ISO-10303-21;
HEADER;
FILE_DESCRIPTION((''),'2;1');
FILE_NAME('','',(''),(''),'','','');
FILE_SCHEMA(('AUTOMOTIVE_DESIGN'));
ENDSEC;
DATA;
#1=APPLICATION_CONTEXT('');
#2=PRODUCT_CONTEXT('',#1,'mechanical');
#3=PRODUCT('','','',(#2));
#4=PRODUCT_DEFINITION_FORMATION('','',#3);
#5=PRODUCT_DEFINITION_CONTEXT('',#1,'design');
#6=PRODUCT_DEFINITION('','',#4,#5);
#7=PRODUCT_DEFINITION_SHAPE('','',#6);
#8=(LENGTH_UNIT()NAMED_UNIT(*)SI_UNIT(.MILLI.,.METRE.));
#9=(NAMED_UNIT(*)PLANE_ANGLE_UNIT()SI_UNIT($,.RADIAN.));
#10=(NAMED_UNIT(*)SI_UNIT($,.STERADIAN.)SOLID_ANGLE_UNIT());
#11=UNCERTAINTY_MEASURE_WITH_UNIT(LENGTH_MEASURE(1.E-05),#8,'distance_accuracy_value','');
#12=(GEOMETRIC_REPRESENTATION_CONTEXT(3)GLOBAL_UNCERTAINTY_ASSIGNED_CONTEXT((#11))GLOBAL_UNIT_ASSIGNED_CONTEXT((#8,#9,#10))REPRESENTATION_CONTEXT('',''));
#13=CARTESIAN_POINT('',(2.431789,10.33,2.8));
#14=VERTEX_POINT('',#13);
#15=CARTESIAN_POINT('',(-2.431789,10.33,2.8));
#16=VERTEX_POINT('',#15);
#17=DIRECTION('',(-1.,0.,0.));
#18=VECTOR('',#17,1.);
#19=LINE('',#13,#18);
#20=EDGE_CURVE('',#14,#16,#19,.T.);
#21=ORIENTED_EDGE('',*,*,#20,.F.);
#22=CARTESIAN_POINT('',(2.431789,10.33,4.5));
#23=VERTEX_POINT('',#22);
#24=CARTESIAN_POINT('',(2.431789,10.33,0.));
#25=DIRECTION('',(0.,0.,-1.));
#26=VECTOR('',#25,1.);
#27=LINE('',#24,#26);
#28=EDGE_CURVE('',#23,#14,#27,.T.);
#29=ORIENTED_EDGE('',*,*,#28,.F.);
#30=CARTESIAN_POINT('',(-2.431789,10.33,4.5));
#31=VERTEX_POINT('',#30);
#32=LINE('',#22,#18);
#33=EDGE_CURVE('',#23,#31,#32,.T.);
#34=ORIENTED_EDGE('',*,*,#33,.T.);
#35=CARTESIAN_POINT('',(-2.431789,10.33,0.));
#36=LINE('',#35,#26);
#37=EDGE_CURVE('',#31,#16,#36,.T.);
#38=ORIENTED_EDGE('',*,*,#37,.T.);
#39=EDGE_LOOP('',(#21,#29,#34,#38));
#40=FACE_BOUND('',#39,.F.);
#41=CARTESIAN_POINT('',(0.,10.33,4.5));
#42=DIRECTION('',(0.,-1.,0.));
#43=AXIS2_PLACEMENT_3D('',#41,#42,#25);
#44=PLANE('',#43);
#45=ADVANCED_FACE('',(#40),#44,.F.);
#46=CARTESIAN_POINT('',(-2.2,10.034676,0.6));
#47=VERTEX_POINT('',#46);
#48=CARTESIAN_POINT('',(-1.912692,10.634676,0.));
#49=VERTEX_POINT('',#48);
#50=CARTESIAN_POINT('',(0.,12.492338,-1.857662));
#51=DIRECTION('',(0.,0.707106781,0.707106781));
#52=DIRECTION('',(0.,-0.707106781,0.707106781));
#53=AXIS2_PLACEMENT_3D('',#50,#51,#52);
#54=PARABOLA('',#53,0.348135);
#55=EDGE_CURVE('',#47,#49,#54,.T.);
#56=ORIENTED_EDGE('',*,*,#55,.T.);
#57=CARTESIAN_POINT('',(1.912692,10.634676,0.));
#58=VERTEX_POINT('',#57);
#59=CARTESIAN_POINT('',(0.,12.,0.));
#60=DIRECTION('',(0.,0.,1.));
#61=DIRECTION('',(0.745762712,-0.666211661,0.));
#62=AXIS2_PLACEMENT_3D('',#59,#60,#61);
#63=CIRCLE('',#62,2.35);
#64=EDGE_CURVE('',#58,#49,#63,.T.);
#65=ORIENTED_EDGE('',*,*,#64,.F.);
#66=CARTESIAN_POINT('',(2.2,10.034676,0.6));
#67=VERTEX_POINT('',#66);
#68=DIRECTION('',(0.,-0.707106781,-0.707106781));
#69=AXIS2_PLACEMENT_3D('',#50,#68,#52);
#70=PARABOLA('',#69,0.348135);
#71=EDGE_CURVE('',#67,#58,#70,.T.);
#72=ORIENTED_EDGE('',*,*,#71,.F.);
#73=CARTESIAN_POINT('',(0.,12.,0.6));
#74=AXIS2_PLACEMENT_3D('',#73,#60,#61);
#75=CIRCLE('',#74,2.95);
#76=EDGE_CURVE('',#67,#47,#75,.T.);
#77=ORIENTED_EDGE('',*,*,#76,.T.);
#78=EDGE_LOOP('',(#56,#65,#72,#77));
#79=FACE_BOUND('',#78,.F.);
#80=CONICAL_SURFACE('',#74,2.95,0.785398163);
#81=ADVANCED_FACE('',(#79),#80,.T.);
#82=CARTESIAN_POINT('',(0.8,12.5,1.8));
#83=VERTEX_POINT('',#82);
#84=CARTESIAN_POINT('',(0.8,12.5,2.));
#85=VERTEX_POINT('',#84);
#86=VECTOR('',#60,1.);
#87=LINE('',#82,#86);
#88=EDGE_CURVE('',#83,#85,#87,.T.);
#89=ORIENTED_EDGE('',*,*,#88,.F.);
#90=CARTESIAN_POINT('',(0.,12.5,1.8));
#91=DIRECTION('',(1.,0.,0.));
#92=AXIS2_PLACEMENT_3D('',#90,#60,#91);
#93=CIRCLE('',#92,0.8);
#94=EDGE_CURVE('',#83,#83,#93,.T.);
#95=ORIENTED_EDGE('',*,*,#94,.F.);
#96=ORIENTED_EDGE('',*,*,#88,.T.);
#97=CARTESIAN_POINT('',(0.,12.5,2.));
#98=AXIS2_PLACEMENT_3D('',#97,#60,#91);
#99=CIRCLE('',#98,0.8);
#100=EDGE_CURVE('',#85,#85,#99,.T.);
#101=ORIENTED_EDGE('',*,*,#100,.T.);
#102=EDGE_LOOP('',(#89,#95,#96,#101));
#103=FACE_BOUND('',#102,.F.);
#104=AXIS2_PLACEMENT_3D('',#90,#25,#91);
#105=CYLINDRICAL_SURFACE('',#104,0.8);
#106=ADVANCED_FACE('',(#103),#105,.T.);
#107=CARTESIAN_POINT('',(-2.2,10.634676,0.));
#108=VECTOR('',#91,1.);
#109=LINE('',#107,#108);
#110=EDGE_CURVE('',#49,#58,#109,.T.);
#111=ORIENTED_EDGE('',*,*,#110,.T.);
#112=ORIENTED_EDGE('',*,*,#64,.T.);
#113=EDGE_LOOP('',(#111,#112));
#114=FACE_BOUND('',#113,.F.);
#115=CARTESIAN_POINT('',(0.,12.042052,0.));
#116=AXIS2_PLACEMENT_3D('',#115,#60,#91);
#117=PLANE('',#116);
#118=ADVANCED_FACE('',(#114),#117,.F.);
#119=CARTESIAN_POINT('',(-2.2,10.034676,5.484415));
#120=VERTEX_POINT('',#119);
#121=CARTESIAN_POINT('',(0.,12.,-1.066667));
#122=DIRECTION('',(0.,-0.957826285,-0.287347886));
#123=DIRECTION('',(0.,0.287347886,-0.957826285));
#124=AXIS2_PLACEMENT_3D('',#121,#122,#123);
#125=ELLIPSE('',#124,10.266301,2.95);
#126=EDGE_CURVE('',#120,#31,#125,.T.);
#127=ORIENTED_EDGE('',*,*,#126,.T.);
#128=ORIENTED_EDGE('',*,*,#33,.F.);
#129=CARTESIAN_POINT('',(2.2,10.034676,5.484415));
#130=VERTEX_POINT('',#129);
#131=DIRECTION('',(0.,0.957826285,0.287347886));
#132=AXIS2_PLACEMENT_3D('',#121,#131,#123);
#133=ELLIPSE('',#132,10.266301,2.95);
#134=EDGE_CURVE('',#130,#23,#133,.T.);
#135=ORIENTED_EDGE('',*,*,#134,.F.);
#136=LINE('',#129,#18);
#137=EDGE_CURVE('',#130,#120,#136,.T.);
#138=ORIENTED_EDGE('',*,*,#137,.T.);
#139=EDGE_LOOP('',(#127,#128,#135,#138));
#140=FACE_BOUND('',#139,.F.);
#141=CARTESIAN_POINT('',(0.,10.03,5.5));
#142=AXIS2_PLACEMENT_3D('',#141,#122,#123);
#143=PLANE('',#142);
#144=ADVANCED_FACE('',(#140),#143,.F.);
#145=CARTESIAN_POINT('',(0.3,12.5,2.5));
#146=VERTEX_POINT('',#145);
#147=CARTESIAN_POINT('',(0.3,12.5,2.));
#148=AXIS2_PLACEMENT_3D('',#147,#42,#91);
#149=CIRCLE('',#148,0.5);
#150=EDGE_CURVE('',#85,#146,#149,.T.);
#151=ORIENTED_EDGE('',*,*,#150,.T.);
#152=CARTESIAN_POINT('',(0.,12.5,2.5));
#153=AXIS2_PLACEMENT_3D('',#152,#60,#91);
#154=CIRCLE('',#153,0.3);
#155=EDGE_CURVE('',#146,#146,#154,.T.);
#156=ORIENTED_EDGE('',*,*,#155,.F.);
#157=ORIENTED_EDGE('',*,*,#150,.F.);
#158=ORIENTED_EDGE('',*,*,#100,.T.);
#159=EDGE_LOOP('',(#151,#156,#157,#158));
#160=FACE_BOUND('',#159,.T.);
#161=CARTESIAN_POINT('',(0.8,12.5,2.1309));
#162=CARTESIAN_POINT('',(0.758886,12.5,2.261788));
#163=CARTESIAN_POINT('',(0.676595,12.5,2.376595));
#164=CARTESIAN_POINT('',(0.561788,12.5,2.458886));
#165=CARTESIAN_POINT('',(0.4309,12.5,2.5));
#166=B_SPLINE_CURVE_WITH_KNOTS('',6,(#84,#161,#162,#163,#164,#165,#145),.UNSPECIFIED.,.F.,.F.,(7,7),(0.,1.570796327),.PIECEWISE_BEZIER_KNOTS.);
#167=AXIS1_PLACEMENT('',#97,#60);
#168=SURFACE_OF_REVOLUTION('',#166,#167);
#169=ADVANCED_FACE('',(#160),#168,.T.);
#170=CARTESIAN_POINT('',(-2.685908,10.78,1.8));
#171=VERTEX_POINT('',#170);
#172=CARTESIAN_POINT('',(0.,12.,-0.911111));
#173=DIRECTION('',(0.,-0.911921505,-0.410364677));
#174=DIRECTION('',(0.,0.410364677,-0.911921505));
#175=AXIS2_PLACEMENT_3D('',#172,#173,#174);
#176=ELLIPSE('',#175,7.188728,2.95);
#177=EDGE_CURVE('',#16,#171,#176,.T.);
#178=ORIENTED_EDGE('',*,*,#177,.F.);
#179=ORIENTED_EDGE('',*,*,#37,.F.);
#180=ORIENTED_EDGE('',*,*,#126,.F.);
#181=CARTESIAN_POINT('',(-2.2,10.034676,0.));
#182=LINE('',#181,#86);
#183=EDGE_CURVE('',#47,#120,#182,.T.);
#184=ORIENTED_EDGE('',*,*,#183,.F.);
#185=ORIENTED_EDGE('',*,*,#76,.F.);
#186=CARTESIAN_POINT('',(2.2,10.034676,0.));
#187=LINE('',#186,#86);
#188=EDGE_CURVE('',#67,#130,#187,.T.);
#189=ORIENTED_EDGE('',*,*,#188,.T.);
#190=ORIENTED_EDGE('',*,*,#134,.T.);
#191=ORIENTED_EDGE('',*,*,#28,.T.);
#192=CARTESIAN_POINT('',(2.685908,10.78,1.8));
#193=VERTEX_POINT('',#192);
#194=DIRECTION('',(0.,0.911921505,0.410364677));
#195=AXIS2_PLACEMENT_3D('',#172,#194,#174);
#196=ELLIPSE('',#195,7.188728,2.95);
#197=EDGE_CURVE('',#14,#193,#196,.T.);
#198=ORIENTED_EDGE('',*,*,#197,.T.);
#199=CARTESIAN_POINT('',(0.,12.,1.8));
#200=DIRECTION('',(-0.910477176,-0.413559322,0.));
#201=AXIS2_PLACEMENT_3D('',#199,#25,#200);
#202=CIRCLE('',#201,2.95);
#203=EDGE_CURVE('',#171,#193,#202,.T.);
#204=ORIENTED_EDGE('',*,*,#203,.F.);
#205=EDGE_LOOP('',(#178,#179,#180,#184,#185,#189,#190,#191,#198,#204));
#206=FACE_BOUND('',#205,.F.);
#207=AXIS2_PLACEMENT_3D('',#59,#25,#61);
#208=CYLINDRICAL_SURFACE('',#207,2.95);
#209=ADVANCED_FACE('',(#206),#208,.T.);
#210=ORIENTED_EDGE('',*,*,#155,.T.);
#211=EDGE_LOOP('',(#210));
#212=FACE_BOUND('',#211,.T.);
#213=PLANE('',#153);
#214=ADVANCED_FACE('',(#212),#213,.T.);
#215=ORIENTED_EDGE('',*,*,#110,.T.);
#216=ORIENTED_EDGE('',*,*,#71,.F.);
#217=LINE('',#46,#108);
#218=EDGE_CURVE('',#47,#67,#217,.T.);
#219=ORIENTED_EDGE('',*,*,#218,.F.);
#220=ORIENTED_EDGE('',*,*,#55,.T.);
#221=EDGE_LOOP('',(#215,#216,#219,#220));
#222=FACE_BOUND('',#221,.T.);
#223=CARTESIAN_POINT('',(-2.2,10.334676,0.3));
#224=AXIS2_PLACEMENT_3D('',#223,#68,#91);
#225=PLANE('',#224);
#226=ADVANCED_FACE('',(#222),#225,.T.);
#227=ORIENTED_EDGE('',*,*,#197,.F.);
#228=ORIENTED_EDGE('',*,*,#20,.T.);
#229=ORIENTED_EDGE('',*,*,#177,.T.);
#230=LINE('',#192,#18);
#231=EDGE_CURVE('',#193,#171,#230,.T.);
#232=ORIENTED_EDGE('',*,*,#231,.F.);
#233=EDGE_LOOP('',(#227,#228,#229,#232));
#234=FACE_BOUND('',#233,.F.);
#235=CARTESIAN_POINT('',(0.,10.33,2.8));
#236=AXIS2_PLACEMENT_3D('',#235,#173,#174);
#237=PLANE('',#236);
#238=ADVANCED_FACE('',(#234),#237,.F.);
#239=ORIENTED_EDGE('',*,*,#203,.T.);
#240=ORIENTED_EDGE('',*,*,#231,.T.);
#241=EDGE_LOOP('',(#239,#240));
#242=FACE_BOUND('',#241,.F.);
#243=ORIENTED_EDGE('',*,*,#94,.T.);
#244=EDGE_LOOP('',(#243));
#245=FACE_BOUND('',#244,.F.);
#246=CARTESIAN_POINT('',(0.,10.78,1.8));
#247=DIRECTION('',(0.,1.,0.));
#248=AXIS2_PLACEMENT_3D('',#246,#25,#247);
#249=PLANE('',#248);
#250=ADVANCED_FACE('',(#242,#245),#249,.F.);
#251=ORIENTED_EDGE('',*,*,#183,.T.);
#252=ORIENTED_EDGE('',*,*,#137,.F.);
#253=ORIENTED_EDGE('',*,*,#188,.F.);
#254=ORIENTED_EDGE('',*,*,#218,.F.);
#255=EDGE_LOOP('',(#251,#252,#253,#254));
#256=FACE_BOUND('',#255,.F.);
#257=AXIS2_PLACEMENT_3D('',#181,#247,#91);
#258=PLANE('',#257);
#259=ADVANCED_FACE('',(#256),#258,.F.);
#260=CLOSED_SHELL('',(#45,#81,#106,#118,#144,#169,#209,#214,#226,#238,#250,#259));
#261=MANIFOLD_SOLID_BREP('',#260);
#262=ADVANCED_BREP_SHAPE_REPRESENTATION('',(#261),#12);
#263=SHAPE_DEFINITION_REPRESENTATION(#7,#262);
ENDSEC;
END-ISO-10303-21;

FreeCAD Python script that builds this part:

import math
import FreeCAD as App
import Part
import Sketcher
Q = App.Units.Quantity


def edges_at(feature, points):
    """Names of the edges that pass closest to the given points."""
    edges = feature.Shape.Edges
    near = lambda p: min(range(len(edges)), key=lambda i: edges[i].distToShape(Part.Vertex(*p))[0])
    return sorted({f"Edge{near(p) + 1}" for p in points})

doc = App.newDocument("Part")
params = doc.addObject("Spreadsheet::Sheet", "Params")
for row, (alias, value) in enumerate([
    ("sketch1_radius", "2.95 mm"),
    ("sketch1_width", "4.4 mm"),
    ("pad1_length", "5.5 mm"),
    ("sketch2_height", "1.7 mm"),
    ("sketch2_height2", "3.7 mm"),
    ("sketch2_width", "5.22 mm"),
    ("sketch2_width2", "5.97 mm"),
    ("sketch3_diameter", "1.6 mm"),
    ("pad2_length", "0.7 mm"),
    ("fillet_radius", "0.5 mm"),
    ("chamfer_size", "0.6 mm"),
], start=1):
    params.set(f"A{row}", alias)
    params.set(f"B{row}", "=" + value)
    params.setAlias(f"B{row}", alias)

body = doc.addObject("PartDesign::Body", "Body")

# Sketch on XY plane
sketch1 = doc.addObject("Sketcher::SketchObject", "Sketch")
body.addObject(sketch1)
sketch1.AttachmentSupport = (doc.XY_Plane, [""])
sketch1.MapMode = "FlatFace"
sketch1.addGeometry(Part.ArcOfCircle(Part.Circle(App.Vector(0, 0, 0), App.Vector(0, 0, 1), 3), math.radians(-42), math.radians(222)), False)
sketch1.addGeometry(Part.LineSegment(App.Vector(-2.2, -2, 0), App.Vector(2.2, -2, 0)), False)
sketch1.addConstraint(Sketcher.Constraint("Coincident", 0, 1, 1, 2))
sketch1.addConstraint(Sketcher.Constraint("Coincident", 1, 1, 0, 2))
sketch1.addConstraint(Sketcher.Constraint("Horizontal", 1))
sketch1.addConstraint(Sketcher.Constraint("Coincident", 0, 3, -1, 1))
sketch1.addConstraint(Sketcher.Constraint("Radius", 0, Q("2.95 mm")))
sketch1.addConstraint(Sketcher.Constraint("DistanceX", 1, 1, 1, 2, Q("4.4 mm")))
sketch1.setExpression("Constraints[4]", "Params.sketch1_radius")
sketch1.setExpression("Constraints[5]", "Params.sketch1_width")
pad1 = doc.addObject("PartDesign::Pad", "Pad")
body.addObject(pad1)
pad1.Profile = sketch1
pad1.setExpression("Length", "Params.pad1_length")

# Sketch on YZ plane
sketch2 = doc.addObject("Sketcher::SketchObject", "Sketch001")
body.addObject(sketch2)
sketch2.AttachmentSupport = (doc.YZ_Plane, [""])
sketch2.MapMode = "FlatFace"
sketch2.addGeometry(Part.LineSegment(App.Vector(-2, 5.5, 0), App.Vector(-1.7, 4.5, 0)), False)
sketch2.addGeometry(Part.LineSegment(App.Vector(-1.7, 4.5, 0), App.Vector(-1.7, 2.8, 0)), False)
sketch2.addGeometry(Part.LineSegment(App.Vector(-1.7, 2.8, 0), App.Vector(-1.2, 1.8, 0)), False)
sketch2.addGeometry(Part.LineSegment(App.Vector(-1.2, 1.8, 0), App.Vector(4, 1.8, 0)), False)
sketch2.addGeometry(Part.LineSegment(App.Vector(4, 1.8, 0), App.Vector(4, 5.5, 0)), False)
sketch2.addGeometry(Part.LineSegment(App.Vector(4, 5.5, 0), App.Vector(-2, 5.5, 0)), False)
sketch2.addConstraint(Sketcher.Constraint("Coincident", 0, 2, 1, 1))
sketch2.addConstraint(Sketcher.Constraint("Coincident", 1, 2, 2, 1))
sketch2.addConstraint(Sketcher.Constraint("Coincident", 2, 2, 3, 1))
sketch2.addConstraint(Sketcher.Constraint("Coincident", 3, 2, 4, 1))
sketch2.addConstraint(Sketcher.Constraint("Coincident", 4, 2, 5, 1))
sketch2.addConstraint(Sketcher.Constraint("Coincident", 5, 2, 0, 1))
sketch2.addConstraint(Sketcher.Constraint("Vertical", 1))
sketch2.addConstraint(Sketcher.Constraint("Horizontal", 3))
sketch2.addConstraint(Sketcher.Constraint("Vertical", 4))
sketch2.addConstraint(Sketcher.Constraint("Horizontal", 5))
sketch2.addConstraint(Sketcher.Constraint("DistanceY", 1, 2, 1, 1, Q("1.7 mm")))
sketch2.addConstraint(Sketcher.Constraint("DistanceY", 4, 1, 4, 2, Q("3.7 mm")))
sketch2.addConstraint(Sketcher.Constraint("DistanceX", -1, 1, 3, 2, Q("4 mm")))
sketch2.addConstraint(Sketcher.Constraint("DistanceY", 2, 2, 1, 2, Q("1 mm")))
sketch2.addConstraint(Sketcher.Constraint("DistanceX", 3, 1, 3, 2, Q("5.22 mm")))
sketch2.addConstraint(Sketcher.Constraint("DistanceX", 5, 2, 5, 1, Q("5.97 mm")))
sketch2.addConstraint(Sketcher.Constraint("DistanceY", -1, 1, 0, 2, Q("4.5 mm")))
sketch2.addConstraint(Sketcher.Constraint("DistanceX", 5, 2, 0, 2, Q("0.3 mm")))
sketch2.setExpression("Constraints[10]", "Params.sketch2_height")
sketch2.setExpression("Constraints[11]", "Params.sketch2_height2")
sketch2.setExpression("Constraints[14]", "Params.sketch2_width")
sketch2.setExpression("Constraints[15]", "Params.sketch2_width2")
pocket1 = doc.addObject("PartDesign::Pocket", "Pocket")
body.addObject(pocket1)
pocket1.Profile = sketch2
pocket1.Type = "ThroughAll"
pocket1.Midplane = True

# Sketch on XY plane
sketch3 = doc.addObject("Sketcher::SketchObject", "Sketch002")
body.addObject(sketch3)
sketch3.AttachmentSupport = (doc.XY_Plane, [""])
sketch3.MapMode = "FlatFace"
sketch3.AttachmentOffset = App.Placement(App.Vector(0, 0, 1.8), App.Rotation())
sketch3.addGeometry(Part.Circle(App.Vector(0, 0.5, 0), App.Vector(0, 0, 1), 0.8), False)
sketch3.addConstraint(Sketcher.Constraint("PointOnObject", 0, 3, -2))
sketch3.addConstraint(Sketcher.Constraint("Diameter", 0, Q("1.6 mm")))
sketch3.addConstraint(Sketcher.Constraint("DistanceY", -1, 1, 0, 3, Q("0.5 mm")))
sketch3.setExpression("Constraints[1]", "Params.sketch3_diameter")
pad2 = doc.addObject("PartDesign::Pad", "Pad001")
body.addObject(pad2)
pad2.Profile = sketch3
pad2.setExpression("Length", "Params.pad2_length")
doc.recompute()

fillet = doc.addObject("PartDesign::Fillet", "Fillet")
body.addObject(fillet)
fillet.Base = (pad2, edges_at(pad2, [(-0.8, 0.5, 2.5)]))
fillet.setExpression("Radius", "Params.fillet_radius")
doc.recompute()

chamfer = doc.addObject("PartDesign::Chamfer", "Chamfer")
body.addObject(chamfer)
chamfer.Base = (fillet, edges_at(fillet, [(0, 2.95, 0), (0, -1.965, 0)]))
chamfer.setExpression("Size", "Params.chamfer_size")
body2 = doc.addObject("PartDesign::Body", "Body001")
doc.recompute()

body.Placement = App.Placement(App.Vector(0, 12, 0), App.Rotation(App.Vector(0, 0, 1), 0))
boolean = doc.addObject("PartDesign::Boolean", "Boolean")
body2.addObject(boolean)
boolean.Type = "Fuse"
boolean.addObjects([body])

doc.recompute()
